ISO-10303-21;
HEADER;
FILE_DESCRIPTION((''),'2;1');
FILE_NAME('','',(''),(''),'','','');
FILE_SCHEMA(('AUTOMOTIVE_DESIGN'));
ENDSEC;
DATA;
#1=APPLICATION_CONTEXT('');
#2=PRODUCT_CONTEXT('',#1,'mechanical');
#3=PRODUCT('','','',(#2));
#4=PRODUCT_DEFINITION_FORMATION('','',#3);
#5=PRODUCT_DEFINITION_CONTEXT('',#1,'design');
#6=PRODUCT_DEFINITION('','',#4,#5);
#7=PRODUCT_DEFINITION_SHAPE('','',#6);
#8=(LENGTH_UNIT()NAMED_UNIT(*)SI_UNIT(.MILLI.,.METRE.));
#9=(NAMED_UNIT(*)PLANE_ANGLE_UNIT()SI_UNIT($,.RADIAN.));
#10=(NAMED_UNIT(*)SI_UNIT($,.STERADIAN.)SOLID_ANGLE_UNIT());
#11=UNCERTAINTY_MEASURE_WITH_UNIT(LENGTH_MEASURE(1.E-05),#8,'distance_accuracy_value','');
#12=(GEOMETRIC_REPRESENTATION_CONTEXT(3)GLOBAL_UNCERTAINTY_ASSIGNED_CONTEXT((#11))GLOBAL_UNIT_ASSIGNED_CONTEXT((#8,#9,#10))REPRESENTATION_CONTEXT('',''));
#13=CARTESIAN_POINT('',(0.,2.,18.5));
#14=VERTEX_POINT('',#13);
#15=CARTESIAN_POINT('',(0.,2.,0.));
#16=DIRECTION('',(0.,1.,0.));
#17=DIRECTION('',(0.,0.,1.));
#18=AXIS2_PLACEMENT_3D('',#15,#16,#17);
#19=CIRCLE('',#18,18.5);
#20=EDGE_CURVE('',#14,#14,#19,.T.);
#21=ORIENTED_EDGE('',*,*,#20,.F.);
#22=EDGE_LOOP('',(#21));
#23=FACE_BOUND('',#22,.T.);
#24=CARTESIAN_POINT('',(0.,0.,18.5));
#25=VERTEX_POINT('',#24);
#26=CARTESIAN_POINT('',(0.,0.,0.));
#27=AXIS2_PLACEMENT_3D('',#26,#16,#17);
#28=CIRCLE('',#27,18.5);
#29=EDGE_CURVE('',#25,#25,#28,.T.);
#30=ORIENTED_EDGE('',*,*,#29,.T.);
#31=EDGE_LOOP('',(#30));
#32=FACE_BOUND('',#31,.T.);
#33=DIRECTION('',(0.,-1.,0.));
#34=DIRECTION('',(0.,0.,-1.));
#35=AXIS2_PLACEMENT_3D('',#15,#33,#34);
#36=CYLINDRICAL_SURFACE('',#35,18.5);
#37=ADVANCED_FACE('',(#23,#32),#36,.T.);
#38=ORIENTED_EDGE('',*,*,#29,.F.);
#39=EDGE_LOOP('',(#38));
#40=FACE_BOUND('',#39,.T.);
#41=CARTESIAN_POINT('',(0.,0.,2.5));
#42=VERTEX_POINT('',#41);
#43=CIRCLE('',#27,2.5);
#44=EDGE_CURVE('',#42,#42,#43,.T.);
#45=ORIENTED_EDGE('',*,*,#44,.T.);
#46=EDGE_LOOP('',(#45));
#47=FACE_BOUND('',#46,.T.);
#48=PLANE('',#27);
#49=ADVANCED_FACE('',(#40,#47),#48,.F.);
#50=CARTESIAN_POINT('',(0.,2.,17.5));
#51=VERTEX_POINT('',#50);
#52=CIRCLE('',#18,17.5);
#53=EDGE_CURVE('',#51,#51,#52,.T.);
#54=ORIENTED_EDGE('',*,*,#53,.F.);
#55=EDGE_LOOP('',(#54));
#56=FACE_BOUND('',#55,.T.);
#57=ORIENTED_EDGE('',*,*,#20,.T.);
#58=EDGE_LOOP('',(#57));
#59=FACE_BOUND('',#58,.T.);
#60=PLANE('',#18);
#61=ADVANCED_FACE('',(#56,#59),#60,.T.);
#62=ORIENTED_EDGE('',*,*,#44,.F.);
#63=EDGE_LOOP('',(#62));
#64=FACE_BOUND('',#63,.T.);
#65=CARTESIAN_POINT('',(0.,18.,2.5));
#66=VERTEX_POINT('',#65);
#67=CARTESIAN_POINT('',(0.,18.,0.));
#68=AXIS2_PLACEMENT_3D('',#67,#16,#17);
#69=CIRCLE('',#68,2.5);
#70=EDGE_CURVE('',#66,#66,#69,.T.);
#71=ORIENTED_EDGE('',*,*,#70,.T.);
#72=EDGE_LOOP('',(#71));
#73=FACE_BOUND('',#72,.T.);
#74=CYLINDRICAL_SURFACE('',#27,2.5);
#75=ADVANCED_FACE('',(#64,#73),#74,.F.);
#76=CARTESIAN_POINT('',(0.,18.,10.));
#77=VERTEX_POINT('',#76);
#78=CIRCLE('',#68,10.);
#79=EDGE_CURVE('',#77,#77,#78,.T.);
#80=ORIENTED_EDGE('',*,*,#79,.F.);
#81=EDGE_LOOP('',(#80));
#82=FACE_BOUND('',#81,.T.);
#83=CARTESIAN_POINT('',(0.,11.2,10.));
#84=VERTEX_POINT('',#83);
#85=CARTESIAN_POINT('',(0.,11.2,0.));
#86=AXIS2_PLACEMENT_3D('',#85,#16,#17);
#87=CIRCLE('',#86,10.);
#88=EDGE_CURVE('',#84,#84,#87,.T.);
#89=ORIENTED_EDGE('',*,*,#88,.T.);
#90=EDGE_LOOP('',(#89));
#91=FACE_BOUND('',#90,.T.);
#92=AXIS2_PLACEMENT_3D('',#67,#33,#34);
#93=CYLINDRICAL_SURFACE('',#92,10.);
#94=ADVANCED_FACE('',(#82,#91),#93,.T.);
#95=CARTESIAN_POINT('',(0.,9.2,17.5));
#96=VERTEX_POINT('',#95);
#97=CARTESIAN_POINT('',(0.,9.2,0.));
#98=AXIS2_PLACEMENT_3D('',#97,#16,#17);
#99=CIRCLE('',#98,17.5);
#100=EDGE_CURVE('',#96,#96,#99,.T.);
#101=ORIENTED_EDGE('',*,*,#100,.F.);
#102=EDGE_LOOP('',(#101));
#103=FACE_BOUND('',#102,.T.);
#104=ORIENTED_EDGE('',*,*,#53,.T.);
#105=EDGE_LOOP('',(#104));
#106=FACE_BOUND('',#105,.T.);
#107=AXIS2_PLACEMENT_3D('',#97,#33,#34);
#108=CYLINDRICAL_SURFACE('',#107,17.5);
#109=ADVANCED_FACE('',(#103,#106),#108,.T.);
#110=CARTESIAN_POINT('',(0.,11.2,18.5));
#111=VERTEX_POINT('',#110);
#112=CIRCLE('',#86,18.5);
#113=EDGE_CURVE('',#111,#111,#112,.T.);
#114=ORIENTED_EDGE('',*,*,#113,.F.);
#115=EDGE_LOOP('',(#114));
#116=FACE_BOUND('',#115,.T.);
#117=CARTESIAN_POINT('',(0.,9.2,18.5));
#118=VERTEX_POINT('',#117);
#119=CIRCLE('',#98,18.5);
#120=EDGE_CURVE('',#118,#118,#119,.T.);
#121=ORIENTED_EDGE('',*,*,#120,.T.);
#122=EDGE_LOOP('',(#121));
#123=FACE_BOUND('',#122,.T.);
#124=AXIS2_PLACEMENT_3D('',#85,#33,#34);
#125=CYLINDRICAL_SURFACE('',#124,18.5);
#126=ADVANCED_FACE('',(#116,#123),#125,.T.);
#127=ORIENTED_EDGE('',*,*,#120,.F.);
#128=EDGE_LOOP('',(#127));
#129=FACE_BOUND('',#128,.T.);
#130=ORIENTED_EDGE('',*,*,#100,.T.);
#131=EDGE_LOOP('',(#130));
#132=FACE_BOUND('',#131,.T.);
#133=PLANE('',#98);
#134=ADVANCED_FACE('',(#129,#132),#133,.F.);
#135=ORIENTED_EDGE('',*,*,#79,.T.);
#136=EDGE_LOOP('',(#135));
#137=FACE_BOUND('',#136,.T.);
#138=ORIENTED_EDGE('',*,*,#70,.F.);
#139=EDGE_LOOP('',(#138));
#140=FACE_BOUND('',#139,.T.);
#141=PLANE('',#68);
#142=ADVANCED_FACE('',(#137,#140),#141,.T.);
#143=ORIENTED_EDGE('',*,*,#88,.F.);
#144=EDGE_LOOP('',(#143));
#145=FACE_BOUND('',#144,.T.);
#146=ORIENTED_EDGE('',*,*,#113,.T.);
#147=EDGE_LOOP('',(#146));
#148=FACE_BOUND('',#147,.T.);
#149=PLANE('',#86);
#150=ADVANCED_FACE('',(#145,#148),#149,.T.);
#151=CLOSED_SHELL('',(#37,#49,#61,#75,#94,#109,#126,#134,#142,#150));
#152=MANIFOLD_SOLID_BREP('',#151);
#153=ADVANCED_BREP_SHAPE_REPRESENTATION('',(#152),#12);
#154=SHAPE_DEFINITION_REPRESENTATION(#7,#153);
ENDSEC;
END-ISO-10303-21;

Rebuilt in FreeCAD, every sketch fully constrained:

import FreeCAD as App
import Part
import Sketcher

V = App.Vector

doc = App.newDocument("Part")
body = doc.addObject("PartDesign::Body", "Body")

sketch1 = body.newObject("Sketcher::SketchObject", "Sketch")
sketch1.AttachmentSupport = (doc.getObject("XZ_Plane"), [""])
sketch1.MapMode = "FlatFace"
sketch1.addGeometry(Part.Circle(V(0, 0, 0), V(0, 0, 1), 18), False)
sketch1.addConstraint(Sketcher.Constraint("Coincident", 0, 3, -1, 1))
sketch1.addConstraint(Sketcher.Constraint("Diameter", 0, 37.0))
pad1 = body.newObject("PartDesign::Pad", "Pad")
pad1.Profile = sketch1
pad1.Length = 2
pad1.Reversed = True

sketch2 = body.newObject("Sketcher::SketchObject", "Sketch001")
sketch2.AttachmentSupport = (doc.getObject("XZ_Plane"), [""])
sketch2.MapMode = "FlatFace"
sketch2.AttachmentOffset = App.Placement(V(0, 0, -2), App.Rotation())
sketch2.addGeometry(Part.Circle(V(0, 0, 0), V(0, 0, 1), 18), False)
sketch2.addConstraint(Sketcher.Constraint("Coincident", 0, 3, -1, 1))
sketch2.addConstraint(Sketcher.Constraint("Diameter", 0, 35.0))
pad2 = body.newObject("PartDesign::Pad", "Pad001")
pad2.Profile = sketch2
pad2.Length = 7.2
pad2.Reversed = True

sketch3 = body.newObject("Sketcher::SketchObject", "Sketch002")
sketch3.AttachmentSupport = (doc.getObject("XZ_Plane"), [""])
sketch3.MapMode = "FlatFace"
sketch3.AttachmentOffset = App.Placement(V(0, 0, -9.2), App.Rotation())
sketch3.addGeometry(Part.Circle(V(0, 0, 0), V(0, 0, 1), 18), False)
sketch3.addConstraint(Sketcher.Constraint("Coincident", 0, 3, -1, 1))
sketch3.addConstraint(Sketcher.Constraint("Diameter", 0, 37.0))
pad3 = body.newObject("PartDesign::Pad", "Pad002")
pad3.Profile = sketch3
pad3.Length = 2
pad3.Reversed = True

sketch4 = body.newObject("Sketcher::SketchObject", "Sketch003")
sketch4.AttachmentSupport = (doc.getObject("XZ_Plane"), [""])
sketch4.MapMode = "FlatFace"
sketch4.AttachmentOffset = App.Placement(V(0, 0, -11.2), App.Rotation())
sketch4.addGeometry(Part.Circle(V(0, 0, 0), V(0, 0, 1), 10), False)
sketch4.addConstraint(Sketcher.Constraint("Coincident", 0, 3, -1, 1))
sketch4.addConstraint(Sketcher.Constraint("Diameter", 0, 20.0))
pad4 = body.newObject("PartDesign::Pad", "Pad003")
pad4.Profile = sketch4
pad4.Length = 6.8
pad4.Reversed = True

sketch5 = body.newObject("Sketcher::SketchObject", "Sketch004")
sketch5.AttachmentSupport = (doc.getObject("XZ_Plane"), [""])
sketch5.MapMode = "FlatFace"
sketch5.AttachmentOffset = App.Placement(V(0, 0, -18), App.Rotation())
sketch5.addGeometry(Part.Circle(V(0, 0, 0), V(0, 0, 1), 2.5), False)
sketch5.addConstraint(Sketcher.Constraint("Coincident", 0, 3, -1, 1))
sketch5.addConstraint(Sketcher.Constraint("Diameter", 0, 5.0))
pocket1 = body.newObject("PartDesign::Pocket", "Pocket")
pocket1.Profile = sketch5
pocket1.Type = "ThroughAll"
pocket1.Reversed = True

doc.recompute()
